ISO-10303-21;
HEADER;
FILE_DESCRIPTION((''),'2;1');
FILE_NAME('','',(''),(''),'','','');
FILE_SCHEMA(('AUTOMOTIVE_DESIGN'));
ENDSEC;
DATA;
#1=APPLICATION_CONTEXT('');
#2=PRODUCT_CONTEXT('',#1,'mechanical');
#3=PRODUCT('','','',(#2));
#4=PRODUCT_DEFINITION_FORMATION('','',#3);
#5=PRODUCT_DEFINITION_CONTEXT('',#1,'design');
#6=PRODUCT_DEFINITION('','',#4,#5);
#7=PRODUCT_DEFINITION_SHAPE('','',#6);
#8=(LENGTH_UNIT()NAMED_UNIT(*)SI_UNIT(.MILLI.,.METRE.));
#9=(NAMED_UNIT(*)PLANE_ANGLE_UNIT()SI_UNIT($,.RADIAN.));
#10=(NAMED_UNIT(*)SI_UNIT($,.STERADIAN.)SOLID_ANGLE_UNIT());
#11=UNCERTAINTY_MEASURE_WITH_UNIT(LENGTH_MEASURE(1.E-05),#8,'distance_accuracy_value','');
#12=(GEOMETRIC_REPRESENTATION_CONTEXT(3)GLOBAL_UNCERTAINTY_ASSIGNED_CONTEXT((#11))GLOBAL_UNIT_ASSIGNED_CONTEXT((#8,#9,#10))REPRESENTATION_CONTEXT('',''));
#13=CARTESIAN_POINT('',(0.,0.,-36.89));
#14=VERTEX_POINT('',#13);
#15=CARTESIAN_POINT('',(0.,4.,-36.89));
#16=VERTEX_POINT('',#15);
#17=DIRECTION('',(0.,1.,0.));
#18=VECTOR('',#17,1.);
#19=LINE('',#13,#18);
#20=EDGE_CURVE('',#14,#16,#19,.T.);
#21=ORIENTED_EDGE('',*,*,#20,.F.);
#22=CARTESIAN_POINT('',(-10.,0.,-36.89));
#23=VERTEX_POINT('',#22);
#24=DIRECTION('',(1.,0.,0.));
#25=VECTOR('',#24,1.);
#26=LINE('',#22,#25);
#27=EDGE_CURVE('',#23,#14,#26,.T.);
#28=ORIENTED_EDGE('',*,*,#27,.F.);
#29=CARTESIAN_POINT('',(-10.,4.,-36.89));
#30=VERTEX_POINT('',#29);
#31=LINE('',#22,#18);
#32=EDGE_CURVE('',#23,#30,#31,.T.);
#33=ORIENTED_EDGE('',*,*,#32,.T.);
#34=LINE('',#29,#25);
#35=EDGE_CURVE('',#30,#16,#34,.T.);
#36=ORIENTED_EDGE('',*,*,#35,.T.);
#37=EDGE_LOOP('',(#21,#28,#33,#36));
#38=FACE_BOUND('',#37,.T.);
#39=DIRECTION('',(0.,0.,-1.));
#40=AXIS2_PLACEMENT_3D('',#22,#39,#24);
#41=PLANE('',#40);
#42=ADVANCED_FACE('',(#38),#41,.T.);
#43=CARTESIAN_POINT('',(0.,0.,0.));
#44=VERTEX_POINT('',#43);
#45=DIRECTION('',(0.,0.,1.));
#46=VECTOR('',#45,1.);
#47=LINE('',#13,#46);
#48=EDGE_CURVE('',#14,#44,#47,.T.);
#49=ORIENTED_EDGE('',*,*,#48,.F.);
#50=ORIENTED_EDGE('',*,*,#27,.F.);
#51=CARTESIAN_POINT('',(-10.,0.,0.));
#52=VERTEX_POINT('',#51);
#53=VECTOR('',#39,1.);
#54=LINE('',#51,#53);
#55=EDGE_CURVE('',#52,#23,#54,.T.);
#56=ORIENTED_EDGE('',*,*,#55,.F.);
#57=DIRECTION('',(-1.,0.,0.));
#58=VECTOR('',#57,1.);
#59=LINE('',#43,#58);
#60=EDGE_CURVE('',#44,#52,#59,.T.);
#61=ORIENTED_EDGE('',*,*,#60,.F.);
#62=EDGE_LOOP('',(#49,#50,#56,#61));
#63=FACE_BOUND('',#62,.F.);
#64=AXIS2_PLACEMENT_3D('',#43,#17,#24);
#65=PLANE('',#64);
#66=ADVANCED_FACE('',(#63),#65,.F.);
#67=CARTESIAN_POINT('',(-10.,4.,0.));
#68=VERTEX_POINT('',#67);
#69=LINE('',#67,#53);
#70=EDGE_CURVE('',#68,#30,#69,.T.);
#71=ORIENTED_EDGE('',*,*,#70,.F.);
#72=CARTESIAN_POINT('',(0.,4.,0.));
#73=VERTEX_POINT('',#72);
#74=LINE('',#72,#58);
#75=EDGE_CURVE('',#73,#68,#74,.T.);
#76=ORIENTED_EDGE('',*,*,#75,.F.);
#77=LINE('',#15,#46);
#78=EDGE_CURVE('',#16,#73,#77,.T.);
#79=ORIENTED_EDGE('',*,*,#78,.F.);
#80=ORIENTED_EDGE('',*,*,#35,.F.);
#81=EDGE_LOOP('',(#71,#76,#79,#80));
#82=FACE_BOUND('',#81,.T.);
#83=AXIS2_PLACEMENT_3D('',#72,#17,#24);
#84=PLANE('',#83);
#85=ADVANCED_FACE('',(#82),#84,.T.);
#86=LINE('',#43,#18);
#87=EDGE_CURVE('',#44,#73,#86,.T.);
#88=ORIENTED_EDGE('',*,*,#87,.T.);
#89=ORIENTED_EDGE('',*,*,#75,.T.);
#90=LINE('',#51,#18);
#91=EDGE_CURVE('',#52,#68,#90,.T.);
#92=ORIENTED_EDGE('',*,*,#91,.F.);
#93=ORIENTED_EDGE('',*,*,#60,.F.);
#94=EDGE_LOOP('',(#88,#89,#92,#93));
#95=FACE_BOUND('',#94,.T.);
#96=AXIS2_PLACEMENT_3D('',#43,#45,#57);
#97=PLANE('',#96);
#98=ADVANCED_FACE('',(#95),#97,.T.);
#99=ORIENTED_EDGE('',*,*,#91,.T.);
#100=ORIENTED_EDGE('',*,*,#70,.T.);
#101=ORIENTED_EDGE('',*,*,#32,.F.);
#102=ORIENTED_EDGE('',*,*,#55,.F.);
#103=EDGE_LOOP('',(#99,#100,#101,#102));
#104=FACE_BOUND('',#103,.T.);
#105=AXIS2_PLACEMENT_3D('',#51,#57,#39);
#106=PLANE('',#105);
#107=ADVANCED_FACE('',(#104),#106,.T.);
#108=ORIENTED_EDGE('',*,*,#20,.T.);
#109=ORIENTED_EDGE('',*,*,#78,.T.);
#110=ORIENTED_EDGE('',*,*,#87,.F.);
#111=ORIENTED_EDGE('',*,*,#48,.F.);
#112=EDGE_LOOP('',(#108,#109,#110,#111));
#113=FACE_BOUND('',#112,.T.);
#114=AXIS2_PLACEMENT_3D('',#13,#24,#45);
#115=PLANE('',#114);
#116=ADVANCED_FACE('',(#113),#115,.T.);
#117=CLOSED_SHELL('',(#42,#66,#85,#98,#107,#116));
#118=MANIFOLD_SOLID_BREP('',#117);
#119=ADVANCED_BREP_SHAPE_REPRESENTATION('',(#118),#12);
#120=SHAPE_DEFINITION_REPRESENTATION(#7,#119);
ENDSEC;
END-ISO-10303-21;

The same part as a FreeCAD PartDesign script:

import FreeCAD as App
import Part
import Sketcher

V = App.Vector


def add_polygon(sketch, points):
    """Adds a closed chain of lines whose ends are joined by coincident constraints."""
    first, n = sketch.GeometryCount, len(points)
    for a, b in zip(points, points[1:] + points[:1]):
        sketch.addGeometry(Part.LineSegment(App.Vector(*a, 0), App.Vector(*b, 0)), False)
    for i in range(n):
        sketch.addConstraint(Sketcher.Constraint("Coincident", first + i, 2, first + (i + 1) % n, 1))

doc = App.newDocument("Part")
body = doc.addObject("PartDesign::Body", "Body")

# Sketch on XZ plane
sketch1 = body.newObject("Sketcher::SketchObject", "Sketch")
sketch1.AttachmentSupport = (doc.getObject("XZ_Plane"), [""])
sketch1.MapMode = "FlatFace"
add_polygon(sketch1, [(-10, 0), (0, 0), (0, -36.89), (-10, -36.89)])  # lines 0-3
sketch1.addConstraint([
    Sketcher.Constraint("Horizontal", 0),
    Sketcher.Constraint("Vertical", 1),
    Sketcher.Constraint("Horizontal", 2),
    Sketcher.Constraint("Vertical", 3),
    Sketcher.Constraint("Coincident", 0, 2, -1, 1),
    Sketcher.Constraint("DistanceX", 0, 1, 0, 2, 10.0),
    Sketcher.Constraint("DistanceY", 1, 2, 1, 1, 36.89),
])
pad1 = body.newObject("PartDesign::Pad", "Pad")
pad1.Profile = sketch1
pad1.Length = 4
pad1.Reversed = True

doc.recompute()
